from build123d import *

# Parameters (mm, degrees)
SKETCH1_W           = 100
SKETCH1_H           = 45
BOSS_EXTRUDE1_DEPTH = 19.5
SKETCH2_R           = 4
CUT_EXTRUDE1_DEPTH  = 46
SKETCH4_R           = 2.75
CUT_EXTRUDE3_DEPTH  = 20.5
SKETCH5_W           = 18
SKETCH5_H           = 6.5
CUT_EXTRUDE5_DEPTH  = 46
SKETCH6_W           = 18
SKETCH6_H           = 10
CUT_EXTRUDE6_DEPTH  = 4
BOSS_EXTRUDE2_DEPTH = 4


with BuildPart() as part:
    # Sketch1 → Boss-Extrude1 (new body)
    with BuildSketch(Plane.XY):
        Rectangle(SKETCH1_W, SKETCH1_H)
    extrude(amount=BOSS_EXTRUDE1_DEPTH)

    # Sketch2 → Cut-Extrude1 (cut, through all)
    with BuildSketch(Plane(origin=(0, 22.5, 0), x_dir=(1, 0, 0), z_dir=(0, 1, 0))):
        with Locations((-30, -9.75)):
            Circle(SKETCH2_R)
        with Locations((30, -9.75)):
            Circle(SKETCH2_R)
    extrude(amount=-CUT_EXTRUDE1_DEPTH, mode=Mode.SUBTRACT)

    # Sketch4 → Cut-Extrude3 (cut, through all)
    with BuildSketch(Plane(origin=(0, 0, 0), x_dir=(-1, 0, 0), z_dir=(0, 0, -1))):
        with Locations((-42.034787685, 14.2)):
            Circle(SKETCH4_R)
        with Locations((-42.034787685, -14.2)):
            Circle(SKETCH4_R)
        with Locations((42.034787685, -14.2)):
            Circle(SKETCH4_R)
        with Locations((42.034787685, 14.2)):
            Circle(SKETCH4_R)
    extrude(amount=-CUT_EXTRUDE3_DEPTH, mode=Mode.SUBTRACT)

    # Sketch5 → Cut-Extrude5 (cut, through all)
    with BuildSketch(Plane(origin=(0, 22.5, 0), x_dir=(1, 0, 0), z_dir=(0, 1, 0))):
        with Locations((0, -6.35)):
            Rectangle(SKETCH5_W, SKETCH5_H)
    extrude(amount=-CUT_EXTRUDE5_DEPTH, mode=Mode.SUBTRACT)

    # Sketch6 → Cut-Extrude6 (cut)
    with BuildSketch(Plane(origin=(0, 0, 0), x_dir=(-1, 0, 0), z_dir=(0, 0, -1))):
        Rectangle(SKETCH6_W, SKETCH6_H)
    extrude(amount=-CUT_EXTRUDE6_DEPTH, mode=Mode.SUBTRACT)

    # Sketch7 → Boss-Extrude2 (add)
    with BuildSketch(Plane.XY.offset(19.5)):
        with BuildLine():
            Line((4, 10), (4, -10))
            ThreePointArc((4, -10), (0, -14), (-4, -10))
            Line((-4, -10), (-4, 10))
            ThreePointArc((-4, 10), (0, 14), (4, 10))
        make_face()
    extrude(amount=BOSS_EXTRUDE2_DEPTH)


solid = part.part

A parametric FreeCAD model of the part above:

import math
import FreeCAD as App
import Part
import Sketcher

V = App.Vector
Q = App.Units.Quantity


def add_polygon(sketch, points):
    """Adds a closed chain of lines whose ends are joined by coincident constraints."""
    first, n = sketch.GeometryCount, len(points)
    for a, b in zip(points, points[1:] + points[:1]):
        sketch.addGeometry(Part.LineSegment(App.Vector(*a, 0), App.Vector(*b, 0)), False)
    for i in range(n):
        sketch.addConstraint(Sketcher.Constraint("Coincident", first + i, 2, first + (i + 1) % n, 1))

doc = App.newDocument("Part")
body = doc.addObject("PartDesign::Body", "Body")

sketch1 = doc.addObject("Sketcher::SketchObject", "Sketch")
body.addObject(sketch1)
sketch1.AttachmentSupport = (doc.XY_Plane, [""])
sketch1.MapMode = "FlatFace"
add_polygon(sketch1, [(-50, 22), (-50, -22), (50, -22), (50, 22)])
sketch1.addConstraint(Sketcher.Constraint("Vertical", 0))
sketch1.addConstraint(Sketcher.Constraint("Horizontal", 1))
sketch1.addConstraint(Sketcher.Constraint("Vertical", 2))
sketch1.addConstraint(Sketcher.Constraint("Horizontal", 3))
sketch1.addConstraint(Sketcher.Constraint("Symmetric", 0, 2, 2, 2, -1, 1))
sketch1.addConstraint(Sketcher.Constraint("DistanceX", 1, 1, 1, 2, Q("100 mm")))
sketch1.addConstraint(Sketcher.Constraint("DistanceY", 0, 2, 0, 1, Q("45 mm")))
pad1 = doc.addObject("PartDesign::Pad", "Pad")
body.addObject(pad1)
pad1.Profile = sketch1
pad1.Length = 19.5

sketch2 = doc.addObject("Sketcher::SketchObject", "Sketch001")
body.addObject(sketch2)
sketch2.AttachmentSupport = (doc.XZ_Plane, [""])
sketch2.MapMode = "FlatFace"
sketch2.AttachmentOffset = App.Placement(V(0, 0, -22.5), App.Rotation())
sketch2.addGeometry(Part.Circle(V(-30, 9.8, 0), V(0, 0, 1), 4), False)
sketch2.addGeometry(Part.Circle(V(30, 9.8, 0), V(0, 0, 1), 4), False)
sketch2.addConstraint(Sketcher.Constraint("Equal", 0, 1))
sketch2.addConstraint(Sketcher.Constraint("Symmetric", 0, 3, 1, 3, -2))
sketch2.addConstraint(Sketcher.Constraint("Diameter", 0, Q("8 mm")))
sketch2.addConstraint(Sketcher.Constraint("DistanceX", 0, 3, -1, 1, Q("30 mm")))
sketch2.addConstraint(Sketcher.Constraint("DistanceY", -1, 1, 0, 3, Q("9.75 mm")))
pocket1 = doc.addObject("PartDesign::Pocket", "Pocket")
body.addObject(pocket1)
pocket1.Profile = sketch2
pocket1.Type = "ThroughAll"
pocket1.Reversed = True

sketch3 = doc.addObject("Sketcher::SketchObject", "Sketch002")
body.addObject(sketch3)
sketch3.AttachmentSupport = (doc.XY_Plane, [""])
sketch3.MapMode = "FlatFace"
sketch3.addGeometry(Part.Circle(V(42, 14.2, 0), V(0, 0, 1), 2.8), False)
sketch3.addGeometry(Part.Circle(V(42, -14.2, 0), V(0, 0, 1), 2.8), False)
sketch3.addGeometry(Part.Circle(V(-42, -14.2, 0), V(0, 0, 1), 2.8), False)
sketch3.addGeometry(Part.Circle(V(-42, 14.2, 0), V(0, 0, 1), 2.8), False)
sketch3.addConstraint(Sketcher.Constraint("Equal", 0, 1))
sketch3.addConstraint(Sketcher.Constraint("Equal", 1, 2))
sketch3.addConstraint(Sketcher.Constraint("Equal", 2, 3))
sketch3.addConstraint(Sketcher.Constraint("Symmetric", 0, 3, 2, 3, -1, 1))
sketch3.addConstraint(Sketcher.Constraint("Symmetric", 1, 3, 3, 3, -1, 1))
sketch3.addConstraint(Sketcher.Constraint("Symmetric", 1, 3, 2, 3, -2))
sketch3.addConstraint(Sketcher.Constraint("Diameter", 0, Q("5.5 mm")))
sketch3.addConstraint(Sketcher.Constraint("DistanceY", -1, 1, 0, 3, Q("14.2 mm")))
sketch3.addConstraint(Sketcher.Constraint("DistanceX", -1, 1, 0, 3, Q("42.034788 mm")))
pocket2 = doc.addObject("PartDesign::Pocket", "Pocket001")
body.addObject(pocket2)
pocket2.Profile = sketch3
pocket2.Type = "ThroughAll"
pocket2.Reversed = True

sketch4 = doc.addObject("Sketcher::SketchObject", "Sketch003")
body.addObject(sketch4)
sketch4.AttachmentSupport = (doc.XZ_Plane, [""])
sketch4.MapMode = "FlatFace"
sketch4.AttachmentOffset = App.Placement(V(0, 0, -22.5), App.Rotation())
add_polygon(sketch4, [(-9, 3), (-9, 10), (9, 10), (9, 3)])
sketch4.addConstraint(Sketcher.Constraint("Vertical", 0))
sketch4.addConstraint(Sketcher.Constraint("Horizontal", 1))
sketch4.addConstraint(Sketcher.Constraint("Vertical", 2))
sketch4.addConstraint(Sketcher.Constraint("Horizontal", 3))
sketch4.addConstraint(Sketcher.Constraint("DistanceX", 1, 1, 1, 2, Q("18 mm")))
sketch4.addConstraint(Sketcher.Constraint("DistanceY", 0, 1, 0, 2, Q("6.5 mm")))
sketch4.addConstraint(Sketcher.Constraint("DistanceX", 0, 2, -1, 1, Q("9 mm")))
sketch4.addConstraint(Sketcher.Constraint("DistanceY", -1, 1, 0, 2, Q("9.6 mm")))
pocket3 = doc.addObject("PartDesign::Pocket", "Pocket002")
body.addObject(pocket3)
pocket3.Profile = sketch4
pocket3.Type = "ThroughAll"
pocket3.Reversed = True

sketch5 = doc.addObject("Sketcher::SketchObject", "Sketch004")
body.addObject(sketch5)
sketch5.AttachmentSupport = (doc.XY_Plane, [""])
sketch5.MapMode = "FlatFace"
add_polygon(sketch5, [(9, 5), (9, -5), (-9, -5), (-9, 5)])
sketch5.addConstraint(Sketcher.Constraint("Vertical", 0))
sketch5.addConstraint(Sketcher.Constraint("Horizontal", 1))
sketch5.addConstraint(Sketcher.Constraint("Vertical", 2))
sketch5.addConstraint(Sketcher.Constraint("Horizontal", 3))
sketch5.addConstraint(Sketcher.Constraint("Symmetric", 0, 2, 2, 2, -1, 1))
sketch5.addConstraint(Sketcher.Constraint("DistanceX", 1, 2, 1, 1, Q("18 mm")))
sketch5.addConstraint(Sketcher.Constraint("DistanceY", 0, 2, 0, 1, Q("10 mm")))
pocket4 = doc.addObject("PartDesign::Pocket", "Pocket003")
body.addObject(pocket4)
pocket4.Profile = sketch5
pocket4.Length = 4
pocket4.Reversed = True

sketch6 = doc.addObject("Sketcher::SketchObject", "Sketch005")
body.addObject(sketch6)
sketch6.AttachmentSupport = (doc.XY_Plane, [""])
sketch6.MapMode = "FlatFace"
sketch6.AttachmentOffset = App.Placement(V(0, 0, 19.5), App.Rotation())
sketch6.addGeometry(Part.LineSegment(V(4, -10, 0), V(4, 10, 0)), False)
sketch6.addGeometry(Part.ArcOfCircle(Part.Circle(V(0, 10, 0), V(0, 0, 1), 4), math.radians(0), math.radians(180)), False)
sketch6.addGeometry(Part.LineSegment(V(-4, 10, 0), V(-4, -10, 0)), False)
sketch6.addGeometry(Part.ArcOfCircle(Part.Circle(V(0, -10, 0), V(0, 0, 1), 4), math.radians(180), math.radians(360)), False)
sketch6.addConstraint(Sketcher.Constraint("Tangent", 0, 2, 1, 1))
sketch6.addConstraint(Sketcher.Constraint("Tangent", 1, 2, 2, 1))
sketch6.addConstraint(Sketcher.Constraint("Tangent", 2, 2, 3, 1))
sketch6.addConstraint(Sketcher.Constraint("Tangent", 3, 2, 0, 1))
sketch6.addConstraint(Sketcher.Constraint("Vertical", 0))
sketch6.addConstraint(Sketcher.Constraint("Vertical", 2))
sketch6.addConstraint(Sketcher.Constraint("Symmetric", 1, 3, 3, 3, -1, 1))
sketch6.addConstraint(Sketcher.Constraint("Radius", 1, Q("4 mm")))
sketch6.addConstraint(Sketcher.Constraint("DistanceY", 0, 1, 0, 2, Q("20 mm")))
pad2 = doc.addObject("PartDesign::Pad", "Pad001")
body.addObject(pad2)
pad2.Profile = sketch6
pad2.Length = 4

doc.recompute()
